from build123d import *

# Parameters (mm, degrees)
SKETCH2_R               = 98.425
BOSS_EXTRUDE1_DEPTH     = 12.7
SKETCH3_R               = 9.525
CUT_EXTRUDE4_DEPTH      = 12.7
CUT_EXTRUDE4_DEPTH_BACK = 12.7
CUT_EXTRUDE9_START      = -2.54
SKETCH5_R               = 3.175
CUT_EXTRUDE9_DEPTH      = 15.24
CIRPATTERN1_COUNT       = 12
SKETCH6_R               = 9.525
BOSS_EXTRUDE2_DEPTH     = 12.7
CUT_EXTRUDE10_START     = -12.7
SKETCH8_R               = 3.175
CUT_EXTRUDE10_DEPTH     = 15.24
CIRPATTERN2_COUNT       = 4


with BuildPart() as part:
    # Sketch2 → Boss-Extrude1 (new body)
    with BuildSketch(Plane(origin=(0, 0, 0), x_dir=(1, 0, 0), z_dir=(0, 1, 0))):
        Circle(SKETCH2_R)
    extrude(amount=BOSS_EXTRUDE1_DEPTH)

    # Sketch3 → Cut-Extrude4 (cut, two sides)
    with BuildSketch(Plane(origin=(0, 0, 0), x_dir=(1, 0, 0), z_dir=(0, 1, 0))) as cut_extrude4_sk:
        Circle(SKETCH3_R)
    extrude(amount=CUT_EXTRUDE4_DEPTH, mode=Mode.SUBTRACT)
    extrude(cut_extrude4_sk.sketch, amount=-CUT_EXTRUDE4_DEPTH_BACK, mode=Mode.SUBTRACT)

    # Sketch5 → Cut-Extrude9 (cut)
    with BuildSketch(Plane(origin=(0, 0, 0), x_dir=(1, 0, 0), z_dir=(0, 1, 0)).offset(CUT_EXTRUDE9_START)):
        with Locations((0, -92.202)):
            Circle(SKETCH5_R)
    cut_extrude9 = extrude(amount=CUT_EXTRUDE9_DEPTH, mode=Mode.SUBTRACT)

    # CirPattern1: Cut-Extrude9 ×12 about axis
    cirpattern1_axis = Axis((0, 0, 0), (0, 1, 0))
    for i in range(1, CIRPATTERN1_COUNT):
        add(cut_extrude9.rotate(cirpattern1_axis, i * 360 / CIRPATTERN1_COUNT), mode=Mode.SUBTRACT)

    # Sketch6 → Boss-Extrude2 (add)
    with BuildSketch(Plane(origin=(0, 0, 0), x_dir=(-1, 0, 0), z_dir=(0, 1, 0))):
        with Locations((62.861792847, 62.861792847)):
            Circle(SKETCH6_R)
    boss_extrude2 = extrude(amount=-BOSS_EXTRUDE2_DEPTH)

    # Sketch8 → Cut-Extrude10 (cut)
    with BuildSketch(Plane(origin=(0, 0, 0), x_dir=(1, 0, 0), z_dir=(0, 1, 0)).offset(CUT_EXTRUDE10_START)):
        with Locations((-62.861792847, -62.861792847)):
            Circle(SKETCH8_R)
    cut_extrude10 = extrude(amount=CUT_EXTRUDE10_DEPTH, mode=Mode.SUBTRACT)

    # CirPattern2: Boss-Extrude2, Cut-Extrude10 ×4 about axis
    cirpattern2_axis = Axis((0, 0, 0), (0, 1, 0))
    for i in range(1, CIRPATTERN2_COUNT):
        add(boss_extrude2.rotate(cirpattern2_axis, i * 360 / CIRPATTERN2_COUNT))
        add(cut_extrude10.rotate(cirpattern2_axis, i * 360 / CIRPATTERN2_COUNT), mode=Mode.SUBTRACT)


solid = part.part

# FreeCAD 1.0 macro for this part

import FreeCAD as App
import Part
import Sketcher
Q = App.Units.Quantity

doc = App.newDocument("Part")
body = doc.addObject("PartDesign::Body", "Body")

# Sketch on XZ plane
sketch1 = doc.addObject("Sketcher::SketchObject", "Sketch")
body.addObject(sketch1)
sketch1.AttachmentSupport = (doc.XZ_Plane, [""])
sketch1.MapMode = "FlatFace"
sketch1.addGeometry(Part.Circle(App.Vector(0, 0, 0), App.Vector(0, 0, 1), 98.425), False)
sketch1.addConstraint([
    Sketcher.Constraint("Coincident", 0, 3, -1, 1),
    Sketcher.Constraint("Diameter", 0, Q("7.75 in")),
])
pad1 = doc.addObject("PartDesign::Pad", "Pad")
body.addObject(pad1)
pad1.Profile = sketch1
pad1.Length = Q("0.5 in")
pad1.Reversed = True

# Sketch on XZ plane
sketch2 = doc.addObject("Sketcher::SketchObject", "Sketch001")
body.addObject(sketch2)
sketch2.AttachmentSupport = (doc.XZ_Plane, [""])
sketch2.MapMode = "FlatFace"
sketch2.addGeometry(Part.Circle(App.Vector(0, 0, 0), App.Vector(0, 0, 1), 9.525), False)
sketch2.addConstraint([
    Sketcher.Constraint("Coincident", 0, 3, -1, 1),
    Sketcher.Constraint("Diameter", 0, Q("0.75 in")),
])
pocket1 = doc.addObject("PartDesign::Pocket", "Pocket")
body.addObject(pocket1)
pocket1.Profile = sketch2
pocket1.Type = "ThroughAll"
pocket1.Midplane = True

# Sketch on XZ plane
sketch3 = doc.addObject("Sketcher::SketchObject", "Sketch002")
body.addObject(sketch3)
sketch3.AttachmentSupport = (doc.XZ_Plane, [""])
sketch3.MapMode = "FlatFace"
sketch3.AttachmentOffset = App.Placement(App.Vector(0, 0, 0.1 * 25.4), App.Rotation())
sketch3.addGeometry(Part.Circle(App.Vector(0, 92.202, 0), App.Vector(0, 0, 1), 3.175), False)
sketch3.addConstraint([
    Sketcher.Constraint("PointOnObject", 0, 3, -2),
    Sketcher.Constraint("Diameter", 0, Q("0.25 in")),
    Sketcher.Constraint("DistanceY", -1, 1, 0, 3, Q("3.63 in")),
])
pocket2 = doc.addObject("PartDesign::Pocket", "Pocket001")
body.addObject(pocket2)
pocket2.Profile = sketch3
pocket2.Length = Q("0.6 in")
doc.recompute()

polarpattern = doc.addObject("PartDesign::PolarPattern", "PolarPattern")
body.addObject(polarpattern)
polarpattern.Originals = [pocket2]
polarpattern.Axis = (doc.Y_Axis, [""])
polarpattern.Angle = 360
polarpattern.Occurrences = 12
body.Tip = polarpattern

# Sketch on XZ plane
sketch4 = doc.addObject("Sketcher::SketchObject", "Sketch003")
body.addObject(sketch4)
sketch4.AttachmentSupport = (doc.XZ_Plane, [""])
sketch4.MapMode = "FlatFace"
sketch4.addGeometry(Part.Circle(App.Vector(-62.861793, 62.861793, 0), App.Vector(0, 0, 1), 9.525), False)
sketch4.addConstraint([
    Sketcher.Constraint("Diameter", 0, Q("0.75 in")),
    Sketcher.Constraint("DistanceX", 0, 3, -1, 1, Q("62.861793 mm")),
    Sketcher.Constraint("DistanceY", -1, 1, 0, 3, Q("62.861793 mm")),
])
pad2 = doc.addObject("PartDesign::Pad", "Pad001")
body.addObject(pad2)
pad2.Profile = sketch4
pad2.Length = Q("0.5 in")

# Sketch on XZ plane
sketch5 = doc.addObject("Sketcher::SketchObject", "Sketch004")
body.addObject(sketch5)
sketch5.AttachmentSupport = (doc.XZ_Plane, [""])
sketch5.MapMode = "FlatFace"
sketch5.AttachmentOffset = App.Placement(App.Vector(0, 0, 0.5 * 25.4), App.Rotation())
sketch5.addGeometry(Part.Circle(App.Vector(-62.861793, 62.861793, 0), App.Vector(0, 0, 1), 3.175), False)
sketch5.addConstraint([
    Sketcher.Constraint("Diameter", 0, Q("0.25 in")),
    Sketcher.Constraint("DistanceX", 0, 3, -1, 1, Q("62.861793 mm")),
    Sketcher.Constraint("DistanceY", -1, 1, 0, 3, Q("62.861793 mm")),
])
pocket3 = doc.addObject("PartDesign::Pocket", "Pocket002")
body.addObject(pocket3)
pocket3.Profile = sketch5
pocket3.Length = Q("0.6 in")
doc.recompute()

polarpattern2 = doc.addObject("PartDesign::PolarPattern", "PolarPattern001")
body.addObject(polarpattern2)
polarpattern2.Originals = [pad2, pocket3]
polarpattern2.Axis = (doc.Y_Axis, [""])
polarpattern2.Angle = 360
polarpattern2.Occurrences = 4
body.Tip = polarpattern2

doc.recompute()
